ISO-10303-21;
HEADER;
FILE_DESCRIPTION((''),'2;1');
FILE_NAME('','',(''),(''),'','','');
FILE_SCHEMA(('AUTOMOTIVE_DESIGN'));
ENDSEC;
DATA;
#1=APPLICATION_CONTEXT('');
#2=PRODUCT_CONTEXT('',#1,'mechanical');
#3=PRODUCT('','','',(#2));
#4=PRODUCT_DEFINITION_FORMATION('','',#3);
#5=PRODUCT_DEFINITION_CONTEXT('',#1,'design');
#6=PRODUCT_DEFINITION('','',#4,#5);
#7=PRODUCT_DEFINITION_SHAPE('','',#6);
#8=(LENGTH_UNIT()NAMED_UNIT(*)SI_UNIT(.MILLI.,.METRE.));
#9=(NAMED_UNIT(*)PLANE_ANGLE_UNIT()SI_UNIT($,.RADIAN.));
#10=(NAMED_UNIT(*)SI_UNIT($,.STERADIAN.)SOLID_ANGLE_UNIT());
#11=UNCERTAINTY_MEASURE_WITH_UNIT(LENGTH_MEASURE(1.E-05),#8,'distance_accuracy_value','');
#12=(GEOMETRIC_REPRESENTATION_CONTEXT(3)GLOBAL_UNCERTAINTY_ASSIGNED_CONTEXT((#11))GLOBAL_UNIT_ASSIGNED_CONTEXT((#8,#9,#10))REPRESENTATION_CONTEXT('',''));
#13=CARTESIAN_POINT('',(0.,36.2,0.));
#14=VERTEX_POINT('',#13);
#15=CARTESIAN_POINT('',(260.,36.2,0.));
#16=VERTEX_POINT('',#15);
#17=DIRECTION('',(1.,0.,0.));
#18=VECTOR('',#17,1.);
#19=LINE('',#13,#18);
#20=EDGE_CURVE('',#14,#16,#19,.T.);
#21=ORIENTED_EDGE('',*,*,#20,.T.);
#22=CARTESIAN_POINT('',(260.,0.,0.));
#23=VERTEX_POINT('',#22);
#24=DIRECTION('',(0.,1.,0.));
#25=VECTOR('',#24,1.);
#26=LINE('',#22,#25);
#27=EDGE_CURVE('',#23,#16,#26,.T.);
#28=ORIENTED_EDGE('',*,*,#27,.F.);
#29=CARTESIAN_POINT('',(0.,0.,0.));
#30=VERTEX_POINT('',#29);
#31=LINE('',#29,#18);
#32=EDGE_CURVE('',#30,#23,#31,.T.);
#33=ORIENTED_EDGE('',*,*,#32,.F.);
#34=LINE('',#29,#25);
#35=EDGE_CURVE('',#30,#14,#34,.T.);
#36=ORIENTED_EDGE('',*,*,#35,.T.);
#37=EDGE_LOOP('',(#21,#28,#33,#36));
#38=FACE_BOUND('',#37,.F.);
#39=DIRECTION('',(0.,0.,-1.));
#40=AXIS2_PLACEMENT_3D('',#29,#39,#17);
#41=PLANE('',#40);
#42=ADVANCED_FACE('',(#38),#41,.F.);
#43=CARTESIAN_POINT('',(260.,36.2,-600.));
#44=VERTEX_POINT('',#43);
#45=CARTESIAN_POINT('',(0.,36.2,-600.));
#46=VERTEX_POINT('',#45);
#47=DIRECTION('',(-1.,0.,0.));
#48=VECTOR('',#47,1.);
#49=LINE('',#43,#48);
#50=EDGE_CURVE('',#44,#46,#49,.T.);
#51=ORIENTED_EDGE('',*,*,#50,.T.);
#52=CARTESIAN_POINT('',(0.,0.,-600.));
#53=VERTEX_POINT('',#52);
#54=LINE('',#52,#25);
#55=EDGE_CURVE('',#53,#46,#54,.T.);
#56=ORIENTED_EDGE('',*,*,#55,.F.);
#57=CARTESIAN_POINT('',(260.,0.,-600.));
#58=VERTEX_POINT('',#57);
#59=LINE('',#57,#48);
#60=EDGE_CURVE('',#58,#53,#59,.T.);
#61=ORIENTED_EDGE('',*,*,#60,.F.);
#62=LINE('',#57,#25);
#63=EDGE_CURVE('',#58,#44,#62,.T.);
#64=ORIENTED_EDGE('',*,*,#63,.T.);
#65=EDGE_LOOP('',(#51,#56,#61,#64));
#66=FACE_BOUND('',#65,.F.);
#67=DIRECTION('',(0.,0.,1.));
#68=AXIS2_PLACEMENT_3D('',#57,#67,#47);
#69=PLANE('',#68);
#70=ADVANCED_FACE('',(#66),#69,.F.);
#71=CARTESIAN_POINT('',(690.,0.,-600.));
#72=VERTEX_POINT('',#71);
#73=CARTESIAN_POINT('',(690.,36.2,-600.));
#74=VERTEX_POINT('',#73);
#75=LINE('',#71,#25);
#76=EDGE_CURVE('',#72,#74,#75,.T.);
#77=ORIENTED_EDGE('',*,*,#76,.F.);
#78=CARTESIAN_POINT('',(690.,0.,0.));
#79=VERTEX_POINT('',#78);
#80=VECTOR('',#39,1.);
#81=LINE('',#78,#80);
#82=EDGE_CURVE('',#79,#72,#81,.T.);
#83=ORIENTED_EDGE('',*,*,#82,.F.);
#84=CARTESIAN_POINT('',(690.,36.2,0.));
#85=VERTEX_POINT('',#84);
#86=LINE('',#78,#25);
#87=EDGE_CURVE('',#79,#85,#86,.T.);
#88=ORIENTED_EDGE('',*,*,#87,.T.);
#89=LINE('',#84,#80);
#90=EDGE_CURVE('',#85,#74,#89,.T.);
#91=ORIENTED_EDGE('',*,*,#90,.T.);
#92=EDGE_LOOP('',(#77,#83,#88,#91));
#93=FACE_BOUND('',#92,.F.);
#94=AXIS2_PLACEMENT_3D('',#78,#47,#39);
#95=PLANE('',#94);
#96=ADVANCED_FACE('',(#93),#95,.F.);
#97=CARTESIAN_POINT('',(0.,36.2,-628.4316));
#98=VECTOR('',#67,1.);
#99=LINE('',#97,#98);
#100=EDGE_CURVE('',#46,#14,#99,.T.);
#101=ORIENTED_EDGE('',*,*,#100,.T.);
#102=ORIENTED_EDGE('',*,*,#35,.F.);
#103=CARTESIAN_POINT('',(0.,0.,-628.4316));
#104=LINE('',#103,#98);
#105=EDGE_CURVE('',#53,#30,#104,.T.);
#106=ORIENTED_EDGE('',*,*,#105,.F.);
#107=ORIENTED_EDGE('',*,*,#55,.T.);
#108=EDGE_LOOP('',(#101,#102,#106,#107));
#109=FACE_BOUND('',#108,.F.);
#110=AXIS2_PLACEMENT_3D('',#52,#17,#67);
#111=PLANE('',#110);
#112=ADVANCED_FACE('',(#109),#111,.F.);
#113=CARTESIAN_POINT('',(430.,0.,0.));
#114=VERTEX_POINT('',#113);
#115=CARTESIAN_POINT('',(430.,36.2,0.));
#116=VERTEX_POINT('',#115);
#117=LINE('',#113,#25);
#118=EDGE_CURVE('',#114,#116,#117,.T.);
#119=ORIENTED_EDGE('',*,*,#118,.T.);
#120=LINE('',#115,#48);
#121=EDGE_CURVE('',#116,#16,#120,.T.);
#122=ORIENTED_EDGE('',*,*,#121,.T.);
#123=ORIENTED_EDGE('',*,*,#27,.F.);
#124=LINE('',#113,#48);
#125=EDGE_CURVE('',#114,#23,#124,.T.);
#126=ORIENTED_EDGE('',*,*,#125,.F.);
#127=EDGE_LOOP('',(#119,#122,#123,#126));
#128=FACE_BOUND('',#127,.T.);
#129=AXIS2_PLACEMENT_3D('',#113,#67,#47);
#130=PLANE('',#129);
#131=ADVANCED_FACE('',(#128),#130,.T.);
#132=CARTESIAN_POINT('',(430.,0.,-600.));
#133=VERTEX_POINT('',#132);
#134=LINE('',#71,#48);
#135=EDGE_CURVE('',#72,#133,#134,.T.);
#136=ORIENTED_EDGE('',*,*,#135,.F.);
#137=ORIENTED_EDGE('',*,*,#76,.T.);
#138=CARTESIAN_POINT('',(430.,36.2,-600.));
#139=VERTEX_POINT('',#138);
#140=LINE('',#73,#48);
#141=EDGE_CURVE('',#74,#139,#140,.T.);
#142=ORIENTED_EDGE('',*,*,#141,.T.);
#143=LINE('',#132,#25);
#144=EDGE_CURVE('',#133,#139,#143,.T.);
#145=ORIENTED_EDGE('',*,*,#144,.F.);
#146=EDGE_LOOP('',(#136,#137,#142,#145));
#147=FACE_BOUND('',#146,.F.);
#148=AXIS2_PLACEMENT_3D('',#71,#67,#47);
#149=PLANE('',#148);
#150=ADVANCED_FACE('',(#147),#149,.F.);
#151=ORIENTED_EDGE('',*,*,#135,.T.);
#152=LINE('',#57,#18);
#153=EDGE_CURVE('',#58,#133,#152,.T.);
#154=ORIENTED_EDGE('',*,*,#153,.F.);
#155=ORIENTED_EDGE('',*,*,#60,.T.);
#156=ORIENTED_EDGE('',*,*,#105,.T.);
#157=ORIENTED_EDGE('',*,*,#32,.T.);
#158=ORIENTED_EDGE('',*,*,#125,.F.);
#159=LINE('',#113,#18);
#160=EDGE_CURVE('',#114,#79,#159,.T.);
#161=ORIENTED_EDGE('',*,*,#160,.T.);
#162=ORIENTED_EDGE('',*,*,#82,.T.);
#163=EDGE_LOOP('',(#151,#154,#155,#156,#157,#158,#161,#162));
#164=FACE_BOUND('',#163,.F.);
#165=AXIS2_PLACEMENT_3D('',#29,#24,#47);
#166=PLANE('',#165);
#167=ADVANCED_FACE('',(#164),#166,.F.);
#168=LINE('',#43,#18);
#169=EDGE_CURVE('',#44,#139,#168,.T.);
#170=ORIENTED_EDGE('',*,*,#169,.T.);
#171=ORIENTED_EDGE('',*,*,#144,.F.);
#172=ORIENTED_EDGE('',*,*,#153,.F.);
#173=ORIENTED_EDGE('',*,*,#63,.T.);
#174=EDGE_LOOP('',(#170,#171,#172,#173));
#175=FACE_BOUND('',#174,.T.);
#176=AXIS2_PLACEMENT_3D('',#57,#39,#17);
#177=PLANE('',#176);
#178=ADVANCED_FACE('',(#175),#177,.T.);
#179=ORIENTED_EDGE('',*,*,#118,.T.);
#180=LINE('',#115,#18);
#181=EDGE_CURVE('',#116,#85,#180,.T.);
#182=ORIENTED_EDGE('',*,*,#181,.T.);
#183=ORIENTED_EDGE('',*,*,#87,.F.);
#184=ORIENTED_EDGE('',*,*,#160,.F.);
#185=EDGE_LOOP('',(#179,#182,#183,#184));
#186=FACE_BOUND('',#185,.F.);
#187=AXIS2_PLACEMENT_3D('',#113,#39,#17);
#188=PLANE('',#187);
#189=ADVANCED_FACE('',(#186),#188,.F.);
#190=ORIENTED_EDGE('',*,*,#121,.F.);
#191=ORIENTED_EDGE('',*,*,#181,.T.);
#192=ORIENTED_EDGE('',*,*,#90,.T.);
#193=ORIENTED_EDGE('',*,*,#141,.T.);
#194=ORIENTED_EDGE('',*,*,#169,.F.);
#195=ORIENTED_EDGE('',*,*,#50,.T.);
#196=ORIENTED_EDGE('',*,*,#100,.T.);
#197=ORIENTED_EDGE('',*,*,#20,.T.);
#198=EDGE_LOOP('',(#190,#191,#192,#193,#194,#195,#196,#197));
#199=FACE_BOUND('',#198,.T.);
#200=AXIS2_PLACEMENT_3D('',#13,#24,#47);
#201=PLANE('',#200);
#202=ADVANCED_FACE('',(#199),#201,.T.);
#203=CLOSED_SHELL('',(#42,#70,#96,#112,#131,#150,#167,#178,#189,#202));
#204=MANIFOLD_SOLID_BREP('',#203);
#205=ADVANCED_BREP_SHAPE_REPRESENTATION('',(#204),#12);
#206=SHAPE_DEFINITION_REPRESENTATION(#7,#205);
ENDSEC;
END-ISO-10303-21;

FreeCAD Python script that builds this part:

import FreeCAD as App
import Part
import Sketcher


def add_polygon(sketch, points):
    """Adds a closed chain of lines whose ends are joined by coincident constraints."""
    first, n = sketch.GeometryCount, len(points)
    for a, b in zip(points, points[1:] + points[:1]):
        sketch.addGeometry(Part.LineSegment(App.Vector(*a, 0), App.Vector(*b, 0)), False)
    for i in range(n):
        sketch.addConstraint(Sketcher.Constraint("Coincident", first + i, 2, first + (i + 1) % n, 1))

doc = App.newDocument("Part")
body = doc.addObject("PartDesign::Body", "Body")

sketch1 = body.newObject("Sketcher::SketchObject", "Sketch")
sketch1.AttachmentSupport = (doc.getObject("XZ_Plane"), [""])
sketch1.MapMode = "FlatFace"
add_polygon(sketch1, [(0, 0), (690, 0), (690, -600), (0, -600)])
sketch1.addConstraint([
    Sketcher.Constraint("Horizontal", 0),
    Sketcher.Constraint("Vertical", 1),
    Sketcher.Constraint("Horizontal", 2),
    Sketcher.Constraint("Vertical", 3),
    Sketcher.Constraint("Coincident", 3, 2, -1, 1),
    Sketcher.Constraint("DistanceX", 0, 1, 0, 2, 690.0),
    Sketcher.Constraint("DistanceY", 1, 2, 1, 1, 600.0),
])
pad1 = body.newObject("PartDesign::Pad", "Pad")
pad1.Profile = sketch1
pad1.Length = 36.2
pad1.Reversed = True

doc.recompute()
